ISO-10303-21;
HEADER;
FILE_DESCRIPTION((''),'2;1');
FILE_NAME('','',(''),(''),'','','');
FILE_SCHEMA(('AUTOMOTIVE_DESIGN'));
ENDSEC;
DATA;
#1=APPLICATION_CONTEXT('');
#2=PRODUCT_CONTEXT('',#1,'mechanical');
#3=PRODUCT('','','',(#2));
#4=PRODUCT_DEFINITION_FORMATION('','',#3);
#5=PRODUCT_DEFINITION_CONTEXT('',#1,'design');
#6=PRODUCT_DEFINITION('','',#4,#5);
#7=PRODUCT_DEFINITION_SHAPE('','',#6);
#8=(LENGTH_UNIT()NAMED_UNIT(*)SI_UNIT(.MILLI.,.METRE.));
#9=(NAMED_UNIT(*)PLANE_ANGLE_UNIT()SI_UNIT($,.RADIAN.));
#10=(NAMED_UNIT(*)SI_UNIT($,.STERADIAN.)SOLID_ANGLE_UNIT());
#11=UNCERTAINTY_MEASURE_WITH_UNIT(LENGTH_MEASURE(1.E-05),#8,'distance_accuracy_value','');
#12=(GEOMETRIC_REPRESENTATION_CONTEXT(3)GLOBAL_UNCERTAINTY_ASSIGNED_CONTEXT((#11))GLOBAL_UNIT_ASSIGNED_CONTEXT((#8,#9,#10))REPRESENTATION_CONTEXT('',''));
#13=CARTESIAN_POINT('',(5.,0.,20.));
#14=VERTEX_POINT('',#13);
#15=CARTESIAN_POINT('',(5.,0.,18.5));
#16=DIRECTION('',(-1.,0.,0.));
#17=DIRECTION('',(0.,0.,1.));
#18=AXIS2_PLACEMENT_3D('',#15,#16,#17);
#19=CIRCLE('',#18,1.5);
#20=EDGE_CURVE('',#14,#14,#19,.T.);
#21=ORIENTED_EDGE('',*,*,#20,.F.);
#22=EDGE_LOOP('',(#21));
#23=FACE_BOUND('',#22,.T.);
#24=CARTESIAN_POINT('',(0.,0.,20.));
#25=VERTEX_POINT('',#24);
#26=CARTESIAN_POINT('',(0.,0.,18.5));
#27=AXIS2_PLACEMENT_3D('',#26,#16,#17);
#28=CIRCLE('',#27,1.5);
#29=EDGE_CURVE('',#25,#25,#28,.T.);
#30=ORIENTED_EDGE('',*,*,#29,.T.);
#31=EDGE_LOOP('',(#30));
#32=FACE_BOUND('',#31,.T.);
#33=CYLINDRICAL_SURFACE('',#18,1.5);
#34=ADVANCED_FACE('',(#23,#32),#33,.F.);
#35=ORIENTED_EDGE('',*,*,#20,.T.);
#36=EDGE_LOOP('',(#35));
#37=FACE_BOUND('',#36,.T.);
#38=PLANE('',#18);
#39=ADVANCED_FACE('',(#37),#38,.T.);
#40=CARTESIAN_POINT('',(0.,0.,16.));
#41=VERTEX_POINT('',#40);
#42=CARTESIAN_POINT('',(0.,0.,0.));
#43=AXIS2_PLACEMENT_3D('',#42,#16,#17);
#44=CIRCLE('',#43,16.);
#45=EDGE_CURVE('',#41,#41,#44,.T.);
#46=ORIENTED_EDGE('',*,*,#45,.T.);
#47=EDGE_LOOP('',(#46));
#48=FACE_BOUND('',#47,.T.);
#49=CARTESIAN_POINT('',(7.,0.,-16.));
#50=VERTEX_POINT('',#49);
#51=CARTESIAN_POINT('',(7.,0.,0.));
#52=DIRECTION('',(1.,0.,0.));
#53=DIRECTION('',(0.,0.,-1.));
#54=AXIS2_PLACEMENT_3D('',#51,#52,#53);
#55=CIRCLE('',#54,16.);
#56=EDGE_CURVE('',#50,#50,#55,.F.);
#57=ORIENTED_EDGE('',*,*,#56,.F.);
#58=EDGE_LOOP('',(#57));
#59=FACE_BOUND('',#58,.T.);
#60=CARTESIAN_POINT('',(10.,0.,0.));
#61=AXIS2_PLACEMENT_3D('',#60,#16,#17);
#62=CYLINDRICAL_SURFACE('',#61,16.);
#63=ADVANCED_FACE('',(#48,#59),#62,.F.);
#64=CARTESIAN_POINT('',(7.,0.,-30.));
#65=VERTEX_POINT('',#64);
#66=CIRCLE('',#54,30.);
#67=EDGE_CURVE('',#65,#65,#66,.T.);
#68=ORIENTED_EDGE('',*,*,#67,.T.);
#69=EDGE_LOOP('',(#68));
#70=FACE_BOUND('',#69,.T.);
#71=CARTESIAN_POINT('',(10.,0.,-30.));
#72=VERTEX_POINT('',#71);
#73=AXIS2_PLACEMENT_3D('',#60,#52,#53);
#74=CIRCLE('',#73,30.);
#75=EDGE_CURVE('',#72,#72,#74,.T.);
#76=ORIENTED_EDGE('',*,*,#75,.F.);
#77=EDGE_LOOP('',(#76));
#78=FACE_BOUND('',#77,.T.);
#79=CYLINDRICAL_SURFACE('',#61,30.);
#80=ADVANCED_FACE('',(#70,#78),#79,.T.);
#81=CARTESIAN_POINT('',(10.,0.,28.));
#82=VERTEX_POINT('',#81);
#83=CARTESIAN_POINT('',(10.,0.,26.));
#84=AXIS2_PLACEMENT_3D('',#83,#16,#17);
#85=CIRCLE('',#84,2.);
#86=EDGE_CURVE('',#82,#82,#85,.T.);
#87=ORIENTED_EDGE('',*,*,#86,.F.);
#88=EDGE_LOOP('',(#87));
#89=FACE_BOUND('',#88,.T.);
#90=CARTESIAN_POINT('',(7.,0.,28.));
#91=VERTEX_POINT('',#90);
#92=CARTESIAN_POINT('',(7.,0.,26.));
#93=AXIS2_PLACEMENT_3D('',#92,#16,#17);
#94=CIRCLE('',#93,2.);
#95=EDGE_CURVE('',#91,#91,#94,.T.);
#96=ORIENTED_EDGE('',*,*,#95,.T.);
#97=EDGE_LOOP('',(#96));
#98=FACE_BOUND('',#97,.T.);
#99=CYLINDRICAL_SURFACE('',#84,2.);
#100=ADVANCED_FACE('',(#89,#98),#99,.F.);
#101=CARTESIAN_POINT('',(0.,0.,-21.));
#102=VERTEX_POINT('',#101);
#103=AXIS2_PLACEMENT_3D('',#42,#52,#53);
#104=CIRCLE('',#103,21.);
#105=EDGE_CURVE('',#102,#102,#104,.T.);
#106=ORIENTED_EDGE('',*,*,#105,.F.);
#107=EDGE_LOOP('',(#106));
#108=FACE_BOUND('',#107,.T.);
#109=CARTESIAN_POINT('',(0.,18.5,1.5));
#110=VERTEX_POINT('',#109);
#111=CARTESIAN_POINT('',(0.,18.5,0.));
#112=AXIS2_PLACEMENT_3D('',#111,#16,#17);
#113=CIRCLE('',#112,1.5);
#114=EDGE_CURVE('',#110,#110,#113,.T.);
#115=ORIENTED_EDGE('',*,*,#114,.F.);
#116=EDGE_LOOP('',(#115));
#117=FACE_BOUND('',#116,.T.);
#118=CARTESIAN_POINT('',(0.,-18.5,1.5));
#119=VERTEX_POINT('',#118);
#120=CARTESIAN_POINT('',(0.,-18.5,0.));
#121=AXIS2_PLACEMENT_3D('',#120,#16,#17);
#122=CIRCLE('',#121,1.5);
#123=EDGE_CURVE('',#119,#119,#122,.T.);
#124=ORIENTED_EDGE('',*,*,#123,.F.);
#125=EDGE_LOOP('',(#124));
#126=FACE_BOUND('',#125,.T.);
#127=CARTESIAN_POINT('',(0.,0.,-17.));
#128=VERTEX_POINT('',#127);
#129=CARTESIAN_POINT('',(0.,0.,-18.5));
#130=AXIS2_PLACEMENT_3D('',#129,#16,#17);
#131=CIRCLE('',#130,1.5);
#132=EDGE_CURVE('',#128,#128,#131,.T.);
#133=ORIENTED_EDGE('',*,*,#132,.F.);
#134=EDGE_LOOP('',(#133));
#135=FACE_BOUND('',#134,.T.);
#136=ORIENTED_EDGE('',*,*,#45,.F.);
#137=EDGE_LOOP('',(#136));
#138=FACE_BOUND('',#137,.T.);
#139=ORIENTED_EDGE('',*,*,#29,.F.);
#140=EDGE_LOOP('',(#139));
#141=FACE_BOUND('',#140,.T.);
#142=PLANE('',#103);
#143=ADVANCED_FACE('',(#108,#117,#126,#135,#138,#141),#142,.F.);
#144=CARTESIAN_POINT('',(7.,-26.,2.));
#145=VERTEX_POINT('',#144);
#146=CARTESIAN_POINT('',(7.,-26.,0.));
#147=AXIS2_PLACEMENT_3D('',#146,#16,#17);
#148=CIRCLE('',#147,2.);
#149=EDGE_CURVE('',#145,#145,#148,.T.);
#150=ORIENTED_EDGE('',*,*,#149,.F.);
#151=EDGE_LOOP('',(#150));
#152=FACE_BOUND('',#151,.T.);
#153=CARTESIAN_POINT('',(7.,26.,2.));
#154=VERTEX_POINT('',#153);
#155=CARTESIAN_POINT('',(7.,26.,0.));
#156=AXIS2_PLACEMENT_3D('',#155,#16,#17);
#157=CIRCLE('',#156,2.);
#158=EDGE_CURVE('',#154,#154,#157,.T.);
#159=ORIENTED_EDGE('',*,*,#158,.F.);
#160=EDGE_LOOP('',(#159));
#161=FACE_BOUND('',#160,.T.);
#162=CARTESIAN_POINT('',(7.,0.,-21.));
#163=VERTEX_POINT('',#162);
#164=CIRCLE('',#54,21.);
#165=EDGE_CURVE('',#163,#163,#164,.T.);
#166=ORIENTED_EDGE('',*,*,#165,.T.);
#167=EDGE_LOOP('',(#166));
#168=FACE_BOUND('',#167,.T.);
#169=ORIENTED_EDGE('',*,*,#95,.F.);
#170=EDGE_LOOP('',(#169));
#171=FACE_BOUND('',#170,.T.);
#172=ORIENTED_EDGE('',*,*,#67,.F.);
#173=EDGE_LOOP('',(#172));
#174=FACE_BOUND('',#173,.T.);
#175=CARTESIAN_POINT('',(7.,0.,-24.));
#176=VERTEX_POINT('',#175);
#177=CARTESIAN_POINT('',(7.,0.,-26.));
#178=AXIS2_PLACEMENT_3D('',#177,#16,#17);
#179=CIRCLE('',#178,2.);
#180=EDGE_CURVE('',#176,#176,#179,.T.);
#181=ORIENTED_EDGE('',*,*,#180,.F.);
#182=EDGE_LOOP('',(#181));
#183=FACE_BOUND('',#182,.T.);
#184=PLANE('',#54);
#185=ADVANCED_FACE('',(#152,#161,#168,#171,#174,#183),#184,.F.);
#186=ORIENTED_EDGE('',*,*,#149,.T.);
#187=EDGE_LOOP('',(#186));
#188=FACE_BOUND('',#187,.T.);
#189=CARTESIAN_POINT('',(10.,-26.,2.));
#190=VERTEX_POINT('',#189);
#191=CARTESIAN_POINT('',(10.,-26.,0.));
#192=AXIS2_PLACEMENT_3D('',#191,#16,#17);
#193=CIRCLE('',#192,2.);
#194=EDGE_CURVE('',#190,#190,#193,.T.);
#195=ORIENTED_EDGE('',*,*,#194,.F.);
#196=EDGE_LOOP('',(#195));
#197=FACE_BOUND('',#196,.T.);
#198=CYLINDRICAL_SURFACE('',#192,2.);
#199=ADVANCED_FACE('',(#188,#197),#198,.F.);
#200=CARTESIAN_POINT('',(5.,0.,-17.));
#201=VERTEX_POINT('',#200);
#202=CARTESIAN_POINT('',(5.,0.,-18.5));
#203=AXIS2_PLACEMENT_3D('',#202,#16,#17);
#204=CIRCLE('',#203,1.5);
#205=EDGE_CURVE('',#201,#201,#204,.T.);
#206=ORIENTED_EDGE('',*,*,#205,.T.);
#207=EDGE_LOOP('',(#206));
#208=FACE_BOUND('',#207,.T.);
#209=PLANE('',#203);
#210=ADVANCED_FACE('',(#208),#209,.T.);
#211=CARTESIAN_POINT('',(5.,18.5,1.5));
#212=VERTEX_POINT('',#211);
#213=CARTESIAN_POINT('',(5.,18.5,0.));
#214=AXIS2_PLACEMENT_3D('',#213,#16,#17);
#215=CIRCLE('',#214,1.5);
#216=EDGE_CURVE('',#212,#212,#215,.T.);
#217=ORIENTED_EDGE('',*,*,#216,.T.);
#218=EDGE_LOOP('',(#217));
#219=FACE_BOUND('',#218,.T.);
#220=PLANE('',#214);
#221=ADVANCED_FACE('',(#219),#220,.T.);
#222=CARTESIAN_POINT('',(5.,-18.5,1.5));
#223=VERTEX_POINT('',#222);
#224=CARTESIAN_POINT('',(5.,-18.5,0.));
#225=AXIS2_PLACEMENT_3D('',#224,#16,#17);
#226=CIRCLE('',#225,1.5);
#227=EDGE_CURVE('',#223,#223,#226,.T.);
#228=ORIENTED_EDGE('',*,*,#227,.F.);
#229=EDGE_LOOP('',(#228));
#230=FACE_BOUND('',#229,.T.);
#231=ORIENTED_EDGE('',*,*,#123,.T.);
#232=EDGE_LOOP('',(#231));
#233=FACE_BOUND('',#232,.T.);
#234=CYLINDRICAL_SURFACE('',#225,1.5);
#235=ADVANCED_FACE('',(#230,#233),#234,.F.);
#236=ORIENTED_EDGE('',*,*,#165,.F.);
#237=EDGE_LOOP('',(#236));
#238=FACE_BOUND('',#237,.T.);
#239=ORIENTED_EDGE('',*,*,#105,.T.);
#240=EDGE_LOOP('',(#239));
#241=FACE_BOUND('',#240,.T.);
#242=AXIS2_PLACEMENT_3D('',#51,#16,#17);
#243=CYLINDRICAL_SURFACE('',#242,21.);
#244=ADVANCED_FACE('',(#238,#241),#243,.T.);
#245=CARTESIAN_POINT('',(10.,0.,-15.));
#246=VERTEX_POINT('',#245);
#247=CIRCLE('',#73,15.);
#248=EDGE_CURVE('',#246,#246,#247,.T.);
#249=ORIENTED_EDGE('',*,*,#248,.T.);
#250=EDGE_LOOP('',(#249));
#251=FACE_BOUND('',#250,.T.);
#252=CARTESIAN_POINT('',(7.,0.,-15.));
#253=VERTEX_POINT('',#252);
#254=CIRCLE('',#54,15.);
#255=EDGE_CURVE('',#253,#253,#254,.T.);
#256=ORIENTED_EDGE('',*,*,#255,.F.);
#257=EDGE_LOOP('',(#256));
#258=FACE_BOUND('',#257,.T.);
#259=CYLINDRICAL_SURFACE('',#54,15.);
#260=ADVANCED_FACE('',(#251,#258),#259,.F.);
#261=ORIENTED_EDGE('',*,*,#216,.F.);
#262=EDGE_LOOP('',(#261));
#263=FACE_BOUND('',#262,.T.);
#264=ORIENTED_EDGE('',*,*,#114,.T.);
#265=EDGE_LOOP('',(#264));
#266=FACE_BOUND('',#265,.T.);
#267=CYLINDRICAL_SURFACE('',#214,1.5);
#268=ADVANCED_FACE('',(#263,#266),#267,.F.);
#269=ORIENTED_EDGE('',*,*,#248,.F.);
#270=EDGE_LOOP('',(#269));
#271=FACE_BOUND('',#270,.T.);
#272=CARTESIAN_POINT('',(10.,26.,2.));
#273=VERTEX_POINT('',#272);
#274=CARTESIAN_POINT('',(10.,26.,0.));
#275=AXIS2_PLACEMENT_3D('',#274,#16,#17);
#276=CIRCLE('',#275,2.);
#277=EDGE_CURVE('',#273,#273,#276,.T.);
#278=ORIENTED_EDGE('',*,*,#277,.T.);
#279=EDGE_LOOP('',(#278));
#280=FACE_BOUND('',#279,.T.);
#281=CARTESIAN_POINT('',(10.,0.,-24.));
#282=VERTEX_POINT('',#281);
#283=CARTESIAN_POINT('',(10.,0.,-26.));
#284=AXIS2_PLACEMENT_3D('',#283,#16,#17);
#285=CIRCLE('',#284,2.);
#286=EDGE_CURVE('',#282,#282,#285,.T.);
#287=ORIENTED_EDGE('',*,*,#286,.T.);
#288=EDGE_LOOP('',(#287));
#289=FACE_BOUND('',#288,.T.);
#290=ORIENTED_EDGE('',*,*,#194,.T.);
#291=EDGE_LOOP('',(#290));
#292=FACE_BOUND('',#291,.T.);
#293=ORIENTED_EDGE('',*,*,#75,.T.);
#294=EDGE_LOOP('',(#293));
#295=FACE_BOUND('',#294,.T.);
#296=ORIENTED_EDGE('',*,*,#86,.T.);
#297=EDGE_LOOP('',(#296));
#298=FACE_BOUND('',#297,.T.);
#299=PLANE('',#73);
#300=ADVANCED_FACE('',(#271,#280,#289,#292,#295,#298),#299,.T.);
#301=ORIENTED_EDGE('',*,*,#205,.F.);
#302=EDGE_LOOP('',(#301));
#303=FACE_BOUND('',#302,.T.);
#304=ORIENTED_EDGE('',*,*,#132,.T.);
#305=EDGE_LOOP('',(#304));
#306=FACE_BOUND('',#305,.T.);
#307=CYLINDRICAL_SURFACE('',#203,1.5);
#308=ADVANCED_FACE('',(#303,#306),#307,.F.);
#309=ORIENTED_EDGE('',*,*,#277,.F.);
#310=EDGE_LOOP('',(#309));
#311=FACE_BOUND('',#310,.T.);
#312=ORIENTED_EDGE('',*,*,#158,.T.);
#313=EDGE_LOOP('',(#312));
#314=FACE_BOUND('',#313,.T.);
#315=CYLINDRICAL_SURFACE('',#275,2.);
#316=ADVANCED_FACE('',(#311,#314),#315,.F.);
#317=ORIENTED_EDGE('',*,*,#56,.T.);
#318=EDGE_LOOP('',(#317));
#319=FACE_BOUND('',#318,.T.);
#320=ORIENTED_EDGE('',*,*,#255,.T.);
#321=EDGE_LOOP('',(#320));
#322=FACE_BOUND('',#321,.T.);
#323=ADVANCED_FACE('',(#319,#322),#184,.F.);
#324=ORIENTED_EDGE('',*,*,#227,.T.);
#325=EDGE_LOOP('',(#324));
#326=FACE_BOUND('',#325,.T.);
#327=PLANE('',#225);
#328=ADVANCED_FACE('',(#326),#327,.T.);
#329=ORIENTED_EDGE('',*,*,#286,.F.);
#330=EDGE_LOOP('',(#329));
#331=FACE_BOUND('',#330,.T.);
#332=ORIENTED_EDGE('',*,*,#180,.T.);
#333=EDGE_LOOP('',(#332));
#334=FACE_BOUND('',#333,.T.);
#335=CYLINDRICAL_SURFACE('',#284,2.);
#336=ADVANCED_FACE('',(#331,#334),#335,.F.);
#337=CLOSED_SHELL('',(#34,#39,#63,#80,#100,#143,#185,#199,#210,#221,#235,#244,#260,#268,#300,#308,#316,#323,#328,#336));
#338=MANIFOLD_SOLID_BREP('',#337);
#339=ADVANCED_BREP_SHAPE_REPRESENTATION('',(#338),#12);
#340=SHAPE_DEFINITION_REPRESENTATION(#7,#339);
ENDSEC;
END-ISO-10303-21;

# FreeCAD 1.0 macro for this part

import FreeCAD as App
import Part
import Sketcher
from FreeCAD import Vector
Q = App.Units.Quantity

doc = App.newDocument("Part")
body = doc.addObject("PartDesign::Body", "Body")

# Sketch on YZ plane
sketch1 = body.newObject("Sketcher::SketchObject", "Sketch")
sketch1.AttachmentSupport = (doc.getObject("YZ_Plane"), [""])
sketch1.MapMode = "FlatFace"
sketch1.addGeometry(Part.Circle(Vector(0, 0, 0), Vector(0, 0, 1), 21), False)
sketch1.addConstraint([
    Sketcher.Constraint("Coincident", 0, 3, -1, 1),
    Sketcher.Constraint("Diameter", 0, Q("42 mm")),
])
pad1 = body.newObject("PartDesign::Pad", "Pad")
pad1.Profile = sketch1
pad1.Length = 7

# Sketch on YZ plane
sketch2 = body.newObject("Sketcher::SketchObject", "Sketch001")
sketch2.AttachmentSupport = (doc.getObject("YZ_Plane"), [""])
sketch2.MapMode = "FlatFace"
sketch2.AttachmentOffset = App.Placement(Vector(0, 0, 7), App.Rotation())
sketch2.addGeometry(Part.Circle(Vector(0, 0, 0), Vector(0, 0, 1), 30), False)
sketch2.addConstraint([
    Sketcher.Constraint("Coincident", 0, 3, -1, 1),
    Sketcher.Constraint("Diameter", 0, Q("60 mm")),
])
pad2 = body.newObject("PartDesign::Pad", "Pad001")
pad2.Profile = sketch2
pad2.Length = 3

# Sketch on YZ plane
sketch3 = body.newObject("Sketcher::SketchObject", "Sketch002")
sketch3.AttachmentSupport = (doc.getObject("YZ_Plane"), [""])
sketch3.MapMode = "FlatFace"
sketch3.addGeometry(Part.Circle(Vector(0, 0, 0), Vector(0, 0, 1), 16), False)
sketch3.addConstraint([
    Sketcher.Constraint("Coincident", 0, 3, -1, 1),
    Sketcher.Constraint("Diameter", 0, Q("32 mm")),
])
pocket1 = body.newObject("PartDesign::Pocket", "Pocket")
pocket1.Profile = sketch3
pocket1.Type = "ThroughAll"
pocket1.Reversed = True

# Sketch on YZ plane
sketch4 = body.newObject("Sketcher::SketchObject", "Sketch003")
sketch4.AttachmentSupport = (doc.getObject("YZ_Plane"), [""])
sketch4.MapMode = "FlatFace"
sketch4.addGeometry([
    Part.Circle(Vector(18.5, 0, 0), Vector(0, 0, 1), 1.5),
    Part.Circle(Vector(0, 18.5, 0), Vector(0, 0, 1), 1.5),
    Part.Circle(Vector(-18.5, 0, 0), Vector(0, 0, 1), 1.5),
    Part.Circle(Vector(0, -18.5, 0), Vector(0, 0, 1), 1.5),
], False)
sketch4.addConstraint([
    Sketcher.Constraint("Equal", 0, 1),
    Sketcher.Constraint("Equal", 1, 2),
    Sketcher.Constraint("Equal", 2, 3),
    Sketcher.Constraint("Symmetric", 0, 3, 2, 3, -1, 1),
    Sketcher.Constraint("Symmetric", 1, 3, 3, 3, -1, 1),
    Sketcher.Constraint("PointOnObject", 0, 3, -1),
    Sketcher.Constraint("PointOnObject", 1, 3, -2),
    Sketcher.Constraint("Diameter", 0, Q("3 mm")),
    Sketcher.Constraint("DistanceX", 2, 3, 0, 3, Q("37 mm")),
    Sketcher.Constraint("DistanceY", 3, 3, 1, 3, Q("37 mm")),
])
pocket2 = body.newObject("PartDesign::Pocket", "Pocket001")
pocket2.Profile = sketch4
pocket2.Length = 5
pocket2.Reversed = True

# Sketch on YZ plane
sketch5 = body.newObject("Sketcher::SketchObject", "Sketch004")
sketch5.AttachmentSupport = (doc.getObject("YZ_Plane"), [""])
sketch5.MapMode = "FlatFace"
sketch5.AttachmentOffset = App.Placement(Vector(0, 0, 7), App.Rotation())
sketch5.addGeometry([
    Part.Circle(Vector(0, 0, 0), Vector(0, 0, 1), 16),
    Part.Circle(Vector(0, 0, 0), Vector(0, 0, 1), 15),
], False)
sketch5.addConstraint([
    Sketcher.Constraint("Coincident", 0, 3, -1, 1),
    Sketcher.Constraint("Coincident", 1, 3, -1, 1),
    Sketcher.Constraint("Diameter", 0, Q("32 mm")),
    Sketcher.Constraint("Diameter", 1, Q("30 mm")),
])
pad3 = body.newObject("PartDesign::Pad", "Pad002")
pad3.Profile = sketch5
pad3.Length = 3

# Sketch on YZ plane
sketch6 = body.newObject("Sketcher::SketchObject", "Sketch005")
sketch6.AttachmentSupport = (doc.getObject("YZ_Plane"), [""])
sketch6.MapMode = "FlatFace"
sketch6.AttachmentOffset = App.Placement(Vector(0, 0, 7), App.Rotation())
sketch6.addGeometry([
    Part.Circle(Vector(26, 0, 0), Vector(0, 0, 1), 2),
    Part.Circle(Vector(0, 26, 0), Vector(0, 0, 1), 2),
    Part.Circle(Vector(-26, 0, 0), Vector(0, 0, 1), 2),
    Part.Circle(Vector(0, -26, 0), Vector(0, 0, 1), 2),
], False)
sketch6.addConstraint([
    Sketcher.Constraint("Equal", 0, 1),
    Sketcher.Constraint("Equal", 1, 2),
    Sketcher.Constraint("Equal", 2, 3),
    Sketcher.Constraint("Symmetric", 0, 3, 2, 3, -1, 1),
    Sketcher.Constraint("Symmetric", 1, 3, 3, 3, -1, 1),
    Sketcher.Constraint("PointOnObject", 0, 3, -1),
    Sketcher.Constraint("PointOnObject", 1, 3, -2),
    Sketcher.Constraint("Diameter", 0, Q("4 mm")),
    Sketcher.Constraint("DistanceX", -1, 1, 0, 3, Q("26 mm")),
    Sketcher.Constraint("DistanceY", -1, 1, 1, 3, Q("26 mm")),
])
pocket3 = body.newObject("PartDesign::Pocket", "Pocket002")
pocket3.Profile = sketch6
pocket3.Type = "ThroughAll"
pocket3.Reversed = True

doc.recompute()
